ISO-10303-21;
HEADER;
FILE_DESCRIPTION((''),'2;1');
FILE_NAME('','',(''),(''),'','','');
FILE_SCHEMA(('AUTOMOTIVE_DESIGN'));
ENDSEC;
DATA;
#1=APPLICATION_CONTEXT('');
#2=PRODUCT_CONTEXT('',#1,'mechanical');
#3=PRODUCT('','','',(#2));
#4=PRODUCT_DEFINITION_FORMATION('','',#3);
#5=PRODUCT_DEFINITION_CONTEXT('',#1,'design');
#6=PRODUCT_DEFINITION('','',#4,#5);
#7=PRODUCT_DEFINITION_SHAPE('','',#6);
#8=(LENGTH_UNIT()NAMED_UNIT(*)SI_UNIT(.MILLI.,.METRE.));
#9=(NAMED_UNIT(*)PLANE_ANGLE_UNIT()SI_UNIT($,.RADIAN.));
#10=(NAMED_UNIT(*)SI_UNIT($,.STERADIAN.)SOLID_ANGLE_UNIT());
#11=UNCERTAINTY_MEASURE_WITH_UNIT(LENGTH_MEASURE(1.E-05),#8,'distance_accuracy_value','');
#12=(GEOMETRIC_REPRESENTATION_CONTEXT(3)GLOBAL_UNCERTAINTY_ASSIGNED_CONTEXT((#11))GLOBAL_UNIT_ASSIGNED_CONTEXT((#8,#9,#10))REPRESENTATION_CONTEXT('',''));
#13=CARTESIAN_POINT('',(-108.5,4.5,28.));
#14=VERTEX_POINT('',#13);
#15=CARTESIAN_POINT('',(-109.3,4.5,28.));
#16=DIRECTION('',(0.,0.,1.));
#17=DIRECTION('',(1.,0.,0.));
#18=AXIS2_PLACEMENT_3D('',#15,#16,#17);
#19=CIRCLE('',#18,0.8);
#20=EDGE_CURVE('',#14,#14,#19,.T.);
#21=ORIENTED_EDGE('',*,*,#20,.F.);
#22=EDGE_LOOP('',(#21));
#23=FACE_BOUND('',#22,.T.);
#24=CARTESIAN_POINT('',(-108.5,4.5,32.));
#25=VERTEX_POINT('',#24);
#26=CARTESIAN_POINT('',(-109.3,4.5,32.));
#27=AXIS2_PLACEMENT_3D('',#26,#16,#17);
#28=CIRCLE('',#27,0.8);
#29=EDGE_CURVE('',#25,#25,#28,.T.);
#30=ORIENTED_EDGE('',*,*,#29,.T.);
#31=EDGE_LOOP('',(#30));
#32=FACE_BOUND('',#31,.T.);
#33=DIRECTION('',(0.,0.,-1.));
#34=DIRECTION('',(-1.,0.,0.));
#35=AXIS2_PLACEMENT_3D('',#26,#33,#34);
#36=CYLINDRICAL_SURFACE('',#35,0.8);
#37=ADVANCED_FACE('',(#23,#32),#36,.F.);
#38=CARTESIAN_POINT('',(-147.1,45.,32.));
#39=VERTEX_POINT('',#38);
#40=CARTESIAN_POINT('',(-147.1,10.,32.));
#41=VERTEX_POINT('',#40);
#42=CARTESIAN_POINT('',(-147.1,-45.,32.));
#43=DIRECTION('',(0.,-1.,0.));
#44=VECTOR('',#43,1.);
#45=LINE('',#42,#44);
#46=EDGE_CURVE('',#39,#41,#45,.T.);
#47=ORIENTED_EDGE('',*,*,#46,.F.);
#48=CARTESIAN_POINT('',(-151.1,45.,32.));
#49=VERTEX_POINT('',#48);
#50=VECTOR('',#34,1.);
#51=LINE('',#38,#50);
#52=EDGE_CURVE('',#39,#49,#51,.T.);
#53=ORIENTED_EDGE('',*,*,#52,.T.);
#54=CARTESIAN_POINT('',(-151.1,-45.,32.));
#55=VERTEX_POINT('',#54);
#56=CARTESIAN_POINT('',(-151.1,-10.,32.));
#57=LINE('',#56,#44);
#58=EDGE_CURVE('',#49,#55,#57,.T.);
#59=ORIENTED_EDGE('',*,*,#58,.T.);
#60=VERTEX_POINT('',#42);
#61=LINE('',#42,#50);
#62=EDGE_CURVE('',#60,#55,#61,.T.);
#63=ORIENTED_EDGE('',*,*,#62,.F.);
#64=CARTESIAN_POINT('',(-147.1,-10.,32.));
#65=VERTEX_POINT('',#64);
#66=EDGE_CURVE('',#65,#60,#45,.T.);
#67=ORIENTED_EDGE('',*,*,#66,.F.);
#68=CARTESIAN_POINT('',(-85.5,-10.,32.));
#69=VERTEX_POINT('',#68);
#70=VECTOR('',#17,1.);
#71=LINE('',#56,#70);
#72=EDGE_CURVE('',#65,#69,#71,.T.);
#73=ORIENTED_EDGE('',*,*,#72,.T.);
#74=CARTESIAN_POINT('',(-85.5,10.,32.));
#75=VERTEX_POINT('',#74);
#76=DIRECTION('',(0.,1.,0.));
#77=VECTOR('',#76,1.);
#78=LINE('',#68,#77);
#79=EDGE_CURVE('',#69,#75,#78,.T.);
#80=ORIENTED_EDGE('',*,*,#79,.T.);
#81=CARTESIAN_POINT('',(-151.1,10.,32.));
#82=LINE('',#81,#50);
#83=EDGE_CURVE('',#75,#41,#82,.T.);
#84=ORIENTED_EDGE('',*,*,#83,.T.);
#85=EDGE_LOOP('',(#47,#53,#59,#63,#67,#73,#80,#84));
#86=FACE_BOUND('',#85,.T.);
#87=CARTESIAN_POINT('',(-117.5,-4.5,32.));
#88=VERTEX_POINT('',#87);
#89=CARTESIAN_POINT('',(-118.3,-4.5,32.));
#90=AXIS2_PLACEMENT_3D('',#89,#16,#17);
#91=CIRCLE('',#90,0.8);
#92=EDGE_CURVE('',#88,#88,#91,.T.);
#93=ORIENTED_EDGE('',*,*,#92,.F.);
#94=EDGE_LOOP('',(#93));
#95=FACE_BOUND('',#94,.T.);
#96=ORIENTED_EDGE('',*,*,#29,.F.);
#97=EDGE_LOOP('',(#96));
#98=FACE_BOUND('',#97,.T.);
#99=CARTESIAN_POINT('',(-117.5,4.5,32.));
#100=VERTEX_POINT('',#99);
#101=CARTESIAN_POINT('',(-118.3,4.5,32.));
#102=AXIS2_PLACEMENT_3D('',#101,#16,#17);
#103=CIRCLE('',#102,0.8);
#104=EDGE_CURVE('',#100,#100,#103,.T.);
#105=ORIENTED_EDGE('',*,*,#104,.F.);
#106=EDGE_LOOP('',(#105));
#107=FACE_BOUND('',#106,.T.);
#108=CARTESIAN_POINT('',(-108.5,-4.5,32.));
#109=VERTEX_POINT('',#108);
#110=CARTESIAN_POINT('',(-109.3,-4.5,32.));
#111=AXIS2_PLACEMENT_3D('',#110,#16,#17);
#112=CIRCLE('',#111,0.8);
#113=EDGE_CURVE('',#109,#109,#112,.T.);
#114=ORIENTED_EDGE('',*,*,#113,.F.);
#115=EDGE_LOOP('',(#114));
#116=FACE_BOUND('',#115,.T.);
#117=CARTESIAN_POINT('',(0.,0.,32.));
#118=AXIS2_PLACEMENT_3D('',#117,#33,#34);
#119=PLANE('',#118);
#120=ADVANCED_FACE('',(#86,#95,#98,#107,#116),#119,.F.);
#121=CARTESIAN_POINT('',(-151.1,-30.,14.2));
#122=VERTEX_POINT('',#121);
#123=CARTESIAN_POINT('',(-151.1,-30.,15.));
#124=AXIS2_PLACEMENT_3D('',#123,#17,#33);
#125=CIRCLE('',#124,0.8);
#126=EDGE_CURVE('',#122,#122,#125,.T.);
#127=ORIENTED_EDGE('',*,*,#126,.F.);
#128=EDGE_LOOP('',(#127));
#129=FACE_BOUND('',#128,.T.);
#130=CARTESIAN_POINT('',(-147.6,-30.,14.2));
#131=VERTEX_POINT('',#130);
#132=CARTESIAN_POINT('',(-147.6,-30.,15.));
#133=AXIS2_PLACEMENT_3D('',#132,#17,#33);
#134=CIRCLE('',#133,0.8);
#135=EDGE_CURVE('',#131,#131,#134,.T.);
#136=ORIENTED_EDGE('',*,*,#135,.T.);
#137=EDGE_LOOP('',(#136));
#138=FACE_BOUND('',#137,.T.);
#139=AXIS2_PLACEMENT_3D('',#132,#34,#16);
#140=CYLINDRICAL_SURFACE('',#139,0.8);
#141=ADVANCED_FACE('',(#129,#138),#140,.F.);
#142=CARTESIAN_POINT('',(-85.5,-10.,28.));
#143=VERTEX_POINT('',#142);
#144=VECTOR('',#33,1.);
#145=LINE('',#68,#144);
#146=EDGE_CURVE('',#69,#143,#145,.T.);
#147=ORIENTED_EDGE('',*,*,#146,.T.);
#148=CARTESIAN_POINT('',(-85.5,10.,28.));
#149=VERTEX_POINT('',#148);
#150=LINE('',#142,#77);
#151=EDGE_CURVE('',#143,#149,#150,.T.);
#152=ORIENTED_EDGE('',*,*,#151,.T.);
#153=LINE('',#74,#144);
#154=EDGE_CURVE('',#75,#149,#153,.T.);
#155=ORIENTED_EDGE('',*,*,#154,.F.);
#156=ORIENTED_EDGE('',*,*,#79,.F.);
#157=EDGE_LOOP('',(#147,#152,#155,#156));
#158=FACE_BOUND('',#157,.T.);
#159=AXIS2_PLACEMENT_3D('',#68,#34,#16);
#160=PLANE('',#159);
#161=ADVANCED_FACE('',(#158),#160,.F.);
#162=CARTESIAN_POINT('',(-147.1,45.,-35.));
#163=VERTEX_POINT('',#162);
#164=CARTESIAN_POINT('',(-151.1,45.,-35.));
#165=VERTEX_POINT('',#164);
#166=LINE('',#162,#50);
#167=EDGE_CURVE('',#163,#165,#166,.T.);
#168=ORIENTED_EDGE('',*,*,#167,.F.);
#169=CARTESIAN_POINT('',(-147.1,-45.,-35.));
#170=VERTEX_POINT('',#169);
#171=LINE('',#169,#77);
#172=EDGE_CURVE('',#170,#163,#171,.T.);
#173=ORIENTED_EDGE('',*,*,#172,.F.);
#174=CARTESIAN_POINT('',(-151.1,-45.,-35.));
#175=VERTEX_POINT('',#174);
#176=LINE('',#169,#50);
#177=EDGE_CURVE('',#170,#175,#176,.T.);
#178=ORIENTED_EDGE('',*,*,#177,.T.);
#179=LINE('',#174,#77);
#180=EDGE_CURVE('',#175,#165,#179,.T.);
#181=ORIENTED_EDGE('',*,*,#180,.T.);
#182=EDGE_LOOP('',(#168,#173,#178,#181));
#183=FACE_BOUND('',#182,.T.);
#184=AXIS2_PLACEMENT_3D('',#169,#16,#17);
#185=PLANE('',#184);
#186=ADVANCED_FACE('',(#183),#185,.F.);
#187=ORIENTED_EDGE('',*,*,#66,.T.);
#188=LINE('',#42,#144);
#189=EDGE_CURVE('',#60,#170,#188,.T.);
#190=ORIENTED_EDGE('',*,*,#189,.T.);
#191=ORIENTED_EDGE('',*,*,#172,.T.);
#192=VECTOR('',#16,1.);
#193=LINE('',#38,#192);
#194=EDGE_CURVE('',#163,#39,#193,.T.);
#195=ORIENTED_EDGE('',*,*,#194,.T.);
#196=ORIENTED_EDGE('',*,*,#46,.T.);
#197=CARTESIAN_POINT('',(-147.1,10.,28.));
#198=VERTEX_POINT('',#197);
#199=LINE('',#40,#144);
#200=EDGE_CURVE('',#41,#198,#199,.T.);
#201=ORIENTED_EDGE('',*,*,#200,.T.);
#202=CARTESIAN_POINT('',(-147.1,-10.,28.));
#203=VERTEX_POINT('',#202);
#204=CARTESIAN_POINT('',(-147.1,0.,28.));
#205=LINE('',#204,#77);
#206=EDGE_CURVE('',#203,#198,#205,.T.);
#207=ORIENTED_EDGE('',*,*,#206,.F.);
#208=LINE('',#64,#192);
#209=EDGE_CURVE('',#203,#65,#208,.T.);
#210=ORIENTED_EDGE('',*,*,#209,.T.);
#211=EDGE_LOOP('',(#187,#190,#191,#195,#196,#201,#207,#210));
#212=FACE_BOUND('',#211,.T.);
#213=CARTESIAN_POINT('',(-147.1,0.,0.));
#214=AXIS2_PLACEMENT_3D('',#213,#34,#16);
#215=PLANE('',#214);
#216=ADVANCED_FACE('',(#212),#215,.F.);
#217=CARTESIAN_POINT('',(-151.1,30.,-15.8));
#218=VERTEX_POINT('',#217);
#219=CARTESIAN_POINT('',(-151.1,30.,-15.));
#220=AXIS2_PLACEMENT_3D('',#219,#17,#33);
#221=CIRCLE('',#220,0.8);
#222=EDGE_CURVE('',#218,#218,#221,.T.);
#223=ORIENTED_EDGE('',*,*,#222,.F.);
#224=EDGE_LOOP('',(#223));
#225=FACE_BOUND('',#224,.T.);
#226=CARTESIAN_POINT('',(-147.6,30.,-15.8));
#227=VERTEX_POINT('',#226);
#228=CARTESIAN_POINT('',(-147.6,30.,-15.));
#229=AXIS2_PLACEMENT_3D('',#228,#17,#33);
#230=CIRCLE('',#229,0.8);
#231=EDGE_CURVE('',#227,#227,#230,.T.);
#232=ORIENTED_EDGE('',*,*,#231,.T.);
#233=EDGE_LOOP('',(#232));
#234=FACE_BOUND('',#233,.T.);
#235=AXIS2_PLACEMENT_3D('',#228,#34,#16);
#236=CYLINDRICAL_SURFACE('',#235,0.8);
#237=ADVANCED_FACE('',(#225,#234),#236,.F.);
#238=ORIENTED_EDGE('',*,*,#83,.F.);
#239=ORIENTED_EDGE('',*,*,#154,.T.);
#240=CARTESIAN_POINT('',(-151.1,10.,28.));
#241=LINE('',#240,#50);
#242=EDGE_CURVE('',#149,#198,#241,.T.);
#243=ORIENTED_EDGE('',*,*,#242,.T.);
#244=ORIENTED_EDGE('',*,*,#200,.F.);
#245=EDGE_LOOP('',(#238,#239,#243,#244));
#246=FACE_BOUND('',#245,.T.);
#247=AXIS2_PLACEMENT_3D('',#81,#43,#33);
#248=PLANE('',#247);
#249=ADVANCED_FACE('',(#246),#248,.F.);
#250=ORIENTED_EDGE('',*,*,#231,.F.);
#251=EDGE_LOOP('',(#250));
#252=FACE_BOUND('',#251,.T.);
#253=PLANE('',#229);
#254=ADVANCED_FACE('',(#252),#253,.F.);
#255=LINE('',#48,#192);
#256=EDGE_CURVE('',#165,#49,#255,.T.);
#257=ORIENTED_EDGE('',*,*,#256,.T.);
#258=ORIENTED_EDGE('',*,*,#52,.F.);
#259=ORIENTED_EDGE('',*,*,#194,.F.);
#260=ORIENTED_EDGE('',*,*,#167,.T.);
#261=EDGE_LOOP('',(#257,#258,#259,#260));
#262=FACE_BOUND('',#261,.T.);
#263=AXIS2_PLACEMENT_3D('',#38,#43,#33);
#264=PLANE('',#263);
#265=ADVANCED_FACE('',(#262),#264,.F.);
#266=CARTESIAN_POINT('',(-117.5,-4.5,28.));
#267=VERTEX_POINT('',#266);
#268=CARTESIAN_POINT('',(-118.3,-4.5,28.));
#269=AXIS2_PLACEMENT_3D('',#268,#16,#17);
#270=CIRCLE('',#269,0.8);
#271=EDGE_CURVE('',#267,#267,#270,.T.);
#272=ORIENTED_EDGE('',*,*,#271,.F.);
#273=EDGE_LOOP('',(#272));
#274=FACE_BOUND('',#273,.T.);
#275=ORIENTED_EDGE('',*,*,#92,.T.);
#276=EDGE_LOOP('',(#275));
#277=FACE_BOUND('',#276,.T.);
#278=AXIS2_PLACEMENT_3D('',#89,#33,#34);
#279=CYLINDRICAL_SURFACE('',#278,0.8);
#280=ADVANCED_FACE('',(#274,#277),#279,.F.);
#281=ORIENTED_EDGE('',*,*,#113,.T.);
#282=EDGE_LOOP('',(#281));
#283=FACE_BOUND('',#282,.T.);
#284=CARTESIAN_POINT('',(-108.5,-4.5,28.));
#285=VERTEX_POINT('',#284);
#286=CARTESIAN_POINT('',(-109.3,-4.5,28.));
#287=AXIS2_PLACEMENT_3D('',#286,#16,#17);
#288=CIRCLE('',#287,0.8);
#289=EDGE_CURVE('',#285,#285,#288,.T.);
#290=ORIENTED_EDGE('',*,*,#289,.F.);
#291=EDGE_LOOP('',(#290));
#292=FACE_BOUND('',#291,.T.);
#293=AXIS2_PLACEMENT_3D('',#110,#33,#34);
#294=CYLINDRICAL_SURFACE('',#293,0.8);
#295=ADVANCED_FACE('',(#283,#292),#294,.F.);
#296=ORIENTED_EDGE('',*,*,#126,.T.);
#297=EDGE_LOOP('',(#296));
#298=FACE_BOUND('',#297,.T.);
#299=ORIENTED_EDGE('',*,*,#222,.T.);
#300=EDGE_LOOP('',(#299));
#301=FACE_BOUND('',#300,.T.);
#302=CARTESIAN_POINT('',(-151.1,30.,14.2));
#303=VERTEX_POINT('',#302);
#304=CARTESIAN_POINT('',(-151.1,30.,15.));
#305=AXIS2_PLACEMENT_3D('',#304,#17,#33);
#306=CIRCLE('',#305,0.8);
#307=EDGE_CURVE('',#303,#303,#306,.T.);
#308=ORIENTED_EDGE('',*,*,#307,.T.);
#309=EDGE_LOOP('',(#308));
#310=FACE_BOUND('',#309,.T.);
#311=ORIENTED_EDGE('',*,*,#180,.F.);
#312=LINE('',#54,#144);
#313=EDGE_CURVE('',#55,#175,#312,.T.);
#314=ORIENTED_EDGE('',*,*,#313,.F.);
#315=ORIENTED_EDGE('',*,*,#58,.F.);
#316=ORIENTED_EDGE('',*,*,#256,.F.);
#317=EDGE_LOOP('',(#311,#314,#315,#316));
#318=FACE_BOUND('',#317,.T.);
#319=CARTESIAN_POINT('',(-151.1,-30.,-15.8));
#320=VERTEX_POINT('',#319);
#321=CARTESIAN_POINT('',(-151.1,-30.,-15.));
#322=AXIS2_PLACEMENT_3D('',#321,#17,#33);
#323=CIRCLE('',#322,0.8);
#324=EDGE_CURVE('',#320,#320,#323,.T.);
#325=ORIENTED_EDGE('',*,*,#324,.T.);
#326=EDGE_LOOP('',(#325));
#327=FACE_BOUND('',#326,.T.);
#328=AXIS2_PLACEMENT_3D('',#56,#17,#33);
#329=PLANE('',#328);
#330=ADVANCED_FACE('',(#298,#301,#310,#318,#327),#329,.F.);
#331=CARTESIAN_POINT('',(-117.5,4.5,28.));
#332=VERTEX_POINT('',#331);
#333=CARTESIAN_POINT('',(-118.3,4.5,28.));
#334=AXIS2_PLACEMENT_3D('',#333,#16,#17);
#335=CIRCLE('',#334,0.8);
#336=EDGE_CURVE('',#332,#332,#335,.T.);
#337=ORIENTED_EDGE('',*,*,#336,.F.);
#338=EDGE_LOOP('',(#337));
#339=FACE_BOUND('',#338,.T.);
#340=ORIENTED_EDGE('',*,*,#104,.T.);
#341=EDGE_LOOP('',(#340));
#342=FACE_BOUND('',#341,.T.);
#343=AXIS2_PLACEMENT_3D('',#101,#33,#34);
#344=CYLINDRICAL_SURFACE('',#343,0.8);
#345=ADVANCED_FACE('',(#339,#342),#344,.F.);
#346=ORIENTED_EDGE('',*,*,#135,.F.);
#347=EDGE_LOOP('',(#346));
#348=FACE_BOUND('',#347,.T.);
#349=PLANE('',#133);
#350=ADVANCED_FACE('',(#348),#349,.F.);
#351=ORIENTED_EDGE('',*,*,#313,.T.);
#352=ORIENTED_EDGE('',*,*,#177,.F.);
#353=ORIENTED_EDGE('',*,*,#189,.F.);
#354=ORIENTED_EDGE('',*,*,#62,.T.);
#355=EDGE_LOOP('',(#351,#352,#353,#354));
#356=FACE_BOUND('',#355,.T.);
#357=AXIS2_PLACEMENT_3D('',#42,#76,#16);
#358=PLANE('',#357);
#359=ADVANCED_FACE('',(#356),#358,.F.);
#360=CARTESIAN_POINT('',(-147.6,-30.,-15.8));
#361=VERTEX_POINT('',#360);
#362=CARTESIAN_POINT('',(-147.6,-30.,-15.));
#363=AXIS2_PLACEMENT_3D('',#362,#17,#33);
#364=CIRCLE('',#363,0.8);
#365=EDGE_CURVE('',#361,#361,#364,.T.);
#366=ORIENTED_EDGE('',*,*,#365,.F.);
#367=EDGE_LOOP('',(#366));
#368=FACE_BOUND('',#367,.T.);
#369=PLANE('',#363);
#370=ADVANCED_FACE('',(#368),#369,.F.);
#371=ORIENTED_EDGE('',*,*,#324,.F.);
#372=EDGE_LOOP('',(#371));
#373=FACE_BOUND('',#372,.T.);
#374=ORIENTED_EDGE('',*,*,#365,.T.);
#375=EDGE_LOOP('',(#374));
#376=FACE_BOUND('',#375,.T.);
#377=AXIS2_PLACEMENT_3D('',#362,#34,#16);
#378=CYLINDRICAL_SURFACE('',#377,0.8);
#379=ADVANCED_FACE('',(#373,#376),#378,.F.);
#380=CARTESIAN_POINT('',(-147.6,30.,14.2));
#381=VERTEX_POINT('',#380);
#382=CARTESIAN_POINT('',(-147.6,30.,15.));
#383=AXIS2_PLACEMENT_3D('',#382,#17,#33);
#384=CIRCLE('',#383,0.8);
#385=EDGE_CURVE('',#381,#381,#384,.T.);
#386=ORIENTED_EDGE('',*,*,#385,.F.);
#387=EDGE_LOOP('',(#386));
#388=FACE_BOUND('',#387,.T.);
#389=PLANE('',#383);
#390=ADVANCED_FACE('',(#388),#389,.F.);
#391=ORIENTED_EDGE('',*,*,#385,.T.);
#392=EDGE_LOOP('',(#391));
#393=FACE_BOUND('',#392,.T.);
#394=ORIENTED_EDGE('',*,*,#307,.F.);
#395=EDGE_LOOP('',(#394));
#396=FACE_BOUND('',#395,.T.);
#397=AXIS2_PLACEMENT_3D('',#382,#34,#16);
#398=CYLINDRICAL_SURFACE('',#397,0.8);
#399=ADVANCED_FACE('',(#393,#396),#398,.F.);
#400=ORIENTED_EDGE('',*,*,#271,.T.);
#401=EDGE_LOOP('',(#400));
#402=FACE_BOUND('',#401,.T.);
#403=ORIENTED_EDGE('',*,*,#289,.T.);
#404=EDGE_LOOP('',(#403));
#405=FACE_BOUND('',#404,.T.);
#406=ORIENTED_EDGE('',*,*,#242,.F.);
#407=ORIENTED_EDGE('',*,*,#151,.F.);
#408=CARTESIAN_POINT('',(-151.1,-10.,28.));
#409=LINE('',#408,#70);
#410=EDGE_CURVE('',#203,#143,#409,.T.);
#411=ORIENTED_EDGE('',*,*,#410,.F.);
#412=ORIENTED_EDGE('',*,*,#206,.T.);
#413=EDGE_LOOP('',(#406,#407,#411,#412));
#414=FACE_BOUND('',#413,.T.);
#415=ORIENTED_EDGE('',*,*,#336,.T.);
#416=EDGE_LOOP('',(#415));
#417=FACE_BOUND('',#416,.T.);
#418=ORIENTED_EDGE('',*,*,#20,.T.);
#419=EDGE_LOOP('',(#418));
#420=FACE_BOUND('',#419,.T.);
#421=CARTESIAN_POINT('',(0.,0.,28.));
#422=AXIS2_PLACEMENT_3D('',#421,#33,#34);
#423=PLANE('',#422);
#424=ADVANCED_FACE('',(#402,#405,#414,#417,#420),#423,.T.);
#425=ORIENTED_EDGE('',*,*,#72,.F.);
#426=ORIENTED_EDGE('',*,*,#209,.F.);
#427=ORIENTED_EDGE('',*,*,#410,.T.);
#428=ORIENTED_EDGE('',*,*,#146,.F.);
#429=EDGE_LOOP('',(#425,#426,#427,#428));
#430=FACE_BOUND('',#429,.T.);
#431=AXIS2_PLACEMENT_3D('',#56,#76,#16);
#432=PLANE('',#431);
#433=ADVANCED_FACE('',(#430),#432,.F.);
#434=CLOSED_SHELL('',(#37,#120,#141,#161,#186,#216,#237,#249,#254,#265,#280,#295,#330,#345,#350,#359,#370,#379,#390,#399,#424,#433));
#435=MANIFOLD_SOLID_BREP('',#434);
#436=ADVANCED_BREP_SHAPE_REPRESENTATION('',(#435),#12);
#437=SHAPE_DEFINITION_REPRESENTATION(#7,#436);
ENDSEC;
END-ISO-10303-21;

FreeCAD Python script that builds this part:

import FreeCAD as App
import Part
import Sketcher
from FreeCAD import Vector
Q = App.Units.Quantity


def add_polygon(sketch, points):
    """Adds a closed chain of lines whose ends are joined by coincident constraints."""
    first, n = sketch.GeometryCount, len(points)
    for a, b in zip(points, points[1:] + points[:1]):
        sketch.addGeometry(Part.LineSegment(App.Vector(*a, 0), App.Vector(*b, 0)), False)
    for i in range(n):
        sketch.addConstraint(Sketcher.Constraint("Coincident", first + i, 2, first + (i + 1) % n, 1))

doc = App.newDocument("Part")
body = doc.addObject("PartDesign::Body", "Body")

# Sketch on XY plane
sketch1 = body.newObject("Sketcher::SketchObject", "Sketch")
sketch1.AttachmentSupport = (doc.getObject("XY_Plane"), [""])
sketch1.MapMode = "FlatFace"
sketch1.AttachmentOffset = App.Placement(Vector(0, 0, 28), App.Rotation())
add_polygon(sketch1, [(-151, 10), (-151, -10), (-86, -10), (-86, 10)])  # lines 0-3
sketch1.addConstraint([
    Sketcher.Constraint("Vertical", 0),
    Sketcher.Constraint("Horizontal", 1),
    Sketcher.Constraint("Vertical", 2),
    Sketcher.Constraint("Horizontal", 3),
    Sketcher.Constraint("DistanceY", 0, 2, 0, 1, Q("20 mm")),
    Sketcher.Constraint("DistanceX", 1, 1, 1, 2, Q("65.6 mm")),
    Sketcher.Constraint("DistanceY", 0, 2, -1, 1, Q("10 mm")),
    Sketcher.Constraint("DistanceX", 0, 2, -1, 1, Q("151.1 mm")),
])
pad1 = body.newObject("PartDesign::Pad", "Pad")
pad1.Profile = sketch1
pad1.Length = 4

# Sketch on YZ plane
sketch2 = body.newObject("Sketcher::SketchObject", "Sketch001")
sketch2.AttachmentSupport = (doc.getObject("YZ_Plane"), [""])
sketch2.MapMode = "FlatFace"
sketch2.AttachmentOffset = App.Placement(Vector(0, 0, -151.1), App.Rotation())
add_polygon(sketch2, [(45, 32), (-45, 32), (-45, -35), (45, -35)])  # lines 0-3
sketch2.addConstraint([
    Sketcher.Constraint("Horizontal", 0),
    Sketcher.Constraint("Vertical", 1),
    Sketcher.Constraint("Horizontal", 2),
    Sketcher.Constraint("Vertical", 3),
    Sketcher.Constraint("DistanceX", 0, 2, 0, 1, Q("90 mm")),
    Sketcher.Constraint("DistanceY", 1, 2, 1, 1, Q("67 mm")),
    Sketcher.Constraint("DistanceX", 0, 2, -1, 1, Q("45 mm")),
    Sketcher.Constraint("DistanceY", -1, 1, 0, 2, Q("32 mm")),
])
pad2 = body.newObject("PartDesign::Pad", "Pad001")
pad2.Profile = sketch2
pad2.Length = 4

# Sketch on XY plane
sketch3 = body.newObject("Sketcher::SketchObject", "Sketch002")
sketch3.AttachmentSupport = (doc.getObject("XY_Plane"), [""])
sketch3.MapMode = "FlatFace"
sketch3.AttachmentOffset = App.Placement(Vector(0, 0, 28), App.Rotation())
sketch3.addGeometry([
    Part.Circle(Vector(-109.3, 4.5, 0), Vector(0, 0, 1), 0.8),
    Part.Circle(Vector(-109.3, -4.5, 0), Vector(0, 0, 1), 0.8),
    Part.Circle(Vector(-118.3, 4.5, 0), Vector(0, 0, 1), 0.8),
    Part.Circle(Vector(-118.3, -4.5, 0), Vector(0, 0, 1), 0.8),
], False)
sketch3.addConstraint([
    Sketcher.Constraint("Equal", 0, 1),
    Sketcher.Constraint("Equal", 1, 2),
    Sketcher.Constraint("Equal", 2, 3),
    Sketcher.Constraint("Symmetric", 0, 3, 1, 3, -1),
    Sketcher.Constraint("Symmetric", 2, 3, 3, 3, -1),
    Sketcher.Constraint("Horizontal", 0, 3, 2, 3),
    Sketcher.Constraint("Diameter", 0, Q("1.6 mm")),
    Sketcher.Constraint("DistanceY", 1, 3, 0, 3, Q("9 mm")),
    Sketcher.Constraint("DistanceX", 2, 3, 0, 3, Q("9 mm")),
    Sketcher.Constraint("DistanceX", 0, 3, -1, 1, Q("109.3 mm")),
])
pocket1 = body.newObject("PartDesign::Pocket", "Pocket")
pocket1.Profile = sketch3
pocket1.Length = 4
pocket1.Reversed = True

# Sketch on YZ plane
sketch4 = body.newObject("Sketcher::SketchObject", "Sketch003")
sketch4.AttachmentSupport = (doc.getObject("YZ_Plane"), [""])
sketch4.MapMode = "FlatFace"
sketch4.AttachmentOffset = App.Placement(Vector(0, 0, -151.1), App.Rotation())
sketch4.addGeometry([
    Part.Circle(Vector(-30, -15, 0), Vector(0, 0, 1), 0.8),
    Part.Circle(Vector(-30, 15, 0), Vector(0, 0, 1), 0.8),
    Part.Circle(Vector(30, -15, 0), Vector(0, 0, 1), 0.8),
    Part.Circle(Vector(30, 15, 0), Vector(0, 0, 1), 0.8),
], False)
sketch4.addConstraint([
    Sketcher.Constraint("Equal", 0, 1),
    Sketcher.Constraint("Equal", 1, 2),
    Sketcher.Constraint("Equal", 2, 3),
    Sketcher.Constraint("Symmetric", 1, 3, 2, 3, -1, 1),
    Sketcher.Constraint("Symmetric", 0, 3, 3, 3, -1, 1),
    Sketcher.Constraint("Symmetric", 0, 3, 2, 3, -2),
    Sketcher.Constraint("Diameter", 0, Q("1.6 mm")),
    Sketcher.Constraint("DistanceX", 0, 3, -1, 1, Q("30 mm")),
    Sketcher.Constraint("DistanceY", 0, 3, -1, 1, Q("15 mm")),
])
pocket2 = body.newObject("PartDesign::Pocket", "Pocket001")
pocket2.Profile = sketch4
pocket2.Length = 3.5
pocket2.Reversed = True

doc.recompute()
